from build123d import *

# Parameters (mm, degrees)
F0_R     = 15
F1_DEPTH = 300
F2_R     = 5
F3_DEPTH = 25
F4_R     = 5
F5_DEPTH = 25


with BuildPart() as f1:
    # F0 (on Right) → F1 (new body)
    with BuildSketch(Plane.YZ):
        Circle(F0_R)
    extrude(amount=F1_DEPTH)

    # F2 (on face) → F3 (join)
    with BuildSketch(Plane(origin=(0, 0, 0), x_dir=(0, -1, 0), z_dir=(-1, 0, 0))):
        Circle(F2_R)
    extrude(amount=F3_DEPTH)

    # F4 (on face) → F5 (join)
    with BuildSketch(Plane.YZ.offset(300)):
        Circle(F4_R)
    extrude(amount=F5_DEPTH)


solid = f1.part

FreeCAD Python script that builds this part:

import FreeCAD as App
import Part
import Sketcher

V = App.Vector

doc = App.newDocument("Part")
params = doc.addObject("Spreadsheet::Sheet", "Params")
for row, (alias, value) in enumerate([
    ("sketch1_diameter", "30 mm"),
    ("pad1_length", "300 mm"),
    ("sketch2_diameter", "10 mm"),
    ("pad2_length", "25 mm"),
    ("sketch3_diameter", "10 mm"),
    ("pad3_length", "25 mm"),
], start=1):
    params.set(f"A{row}", alias)
    params.set(f"B{row}", "=" + value)
    params.setAlias(f"B{row}", alias)

body = doc.addObject("PartDesign::Body", "Body")

# Sketch on YZ plane
sketch1 = body.newObject("Sketcher::SketchObject", "Sketch")
sketch1.AttachmentSupport = (doc.getObject("YZ_Plane"), [""])
sketch1.MapMode = "FlatFace"
sketch1.addGeometry(Part.Circle(V(0, 0, 0), V(0, 0, 1), 15), False)
sketch1.addConstraint(Sketcher.Constraint("Coincident", 0, 3, -1, 1))
sketch1.addConstraint(Sketcher.Constraint("Diameter", 0, 30.0))
sketch1.setExpression("Constraints[1]", "Params.sketch1_diameter")
pad1 = body.newObject("PartDesign::Pad", "Pad")
pad1.Profile = sketch1
pad1.setExpression("Length", "Params.pad1_length")

# Sketch on YZ plane
sketch2 = body.newObject("Sketcher::SketchObject", "Sketch001")
sketch2.AttachmentSupport = (doc.getObject("YZ_Plane"), [""])
sketch2.MapMode = "FlatFace"
sketch2.addGeometry(Part.Circle(V(0, 0, 0), V(0, 0, 1), 5), False)
sketch2.addConstraint(Sketcher.Constraint("Coincident", 0, 3, -1, 1))
sketch2.addConstraint(Sketcher.Constraint("Diameter", 0, 10.0))
sketch2.setExpression("Constraints[1]", "Params.sketch2_diameter")
pad2 = body.newObject("PartDesign::Pad", "Pad001")
pad2.Profile = sketch2
pad2.setExpression("Length", "Params.pad2_length")
pad2.Reversed = True

# Sketch on YZ plane
sketch3 = body.newObject("Sketcher::SketchObject", "Sketch002")
sketch3.AttachmentSupport = (doc.getObject("YZ_Plane"), [""])
sketch3.MapMode = "FlatFace"
sketch3.AttachmentOffset = App.Placement(V(0, 0, 300), App.Rotation())
sketch3.addGeometry(Part.Circle(V(0, 0, 0), V(0, 0, 1), 5), False)
sketch3.addConstraint(Sketcher.Constraint("Coincident", 0, 3, -1, 1))
sketch3.addConstraint(Sketcher.Constraint("Diameter", 0, 10.0))
sketch3.setExpression("Constraints[1]", "Params.sketch3_diameter")
pad3 = body.newObject("PartDesign::Pad", "Pad002")
pad3.Profile = sketch3
pad3.setExpression("Length", "Params.pad3_length")

doc.recompute()
